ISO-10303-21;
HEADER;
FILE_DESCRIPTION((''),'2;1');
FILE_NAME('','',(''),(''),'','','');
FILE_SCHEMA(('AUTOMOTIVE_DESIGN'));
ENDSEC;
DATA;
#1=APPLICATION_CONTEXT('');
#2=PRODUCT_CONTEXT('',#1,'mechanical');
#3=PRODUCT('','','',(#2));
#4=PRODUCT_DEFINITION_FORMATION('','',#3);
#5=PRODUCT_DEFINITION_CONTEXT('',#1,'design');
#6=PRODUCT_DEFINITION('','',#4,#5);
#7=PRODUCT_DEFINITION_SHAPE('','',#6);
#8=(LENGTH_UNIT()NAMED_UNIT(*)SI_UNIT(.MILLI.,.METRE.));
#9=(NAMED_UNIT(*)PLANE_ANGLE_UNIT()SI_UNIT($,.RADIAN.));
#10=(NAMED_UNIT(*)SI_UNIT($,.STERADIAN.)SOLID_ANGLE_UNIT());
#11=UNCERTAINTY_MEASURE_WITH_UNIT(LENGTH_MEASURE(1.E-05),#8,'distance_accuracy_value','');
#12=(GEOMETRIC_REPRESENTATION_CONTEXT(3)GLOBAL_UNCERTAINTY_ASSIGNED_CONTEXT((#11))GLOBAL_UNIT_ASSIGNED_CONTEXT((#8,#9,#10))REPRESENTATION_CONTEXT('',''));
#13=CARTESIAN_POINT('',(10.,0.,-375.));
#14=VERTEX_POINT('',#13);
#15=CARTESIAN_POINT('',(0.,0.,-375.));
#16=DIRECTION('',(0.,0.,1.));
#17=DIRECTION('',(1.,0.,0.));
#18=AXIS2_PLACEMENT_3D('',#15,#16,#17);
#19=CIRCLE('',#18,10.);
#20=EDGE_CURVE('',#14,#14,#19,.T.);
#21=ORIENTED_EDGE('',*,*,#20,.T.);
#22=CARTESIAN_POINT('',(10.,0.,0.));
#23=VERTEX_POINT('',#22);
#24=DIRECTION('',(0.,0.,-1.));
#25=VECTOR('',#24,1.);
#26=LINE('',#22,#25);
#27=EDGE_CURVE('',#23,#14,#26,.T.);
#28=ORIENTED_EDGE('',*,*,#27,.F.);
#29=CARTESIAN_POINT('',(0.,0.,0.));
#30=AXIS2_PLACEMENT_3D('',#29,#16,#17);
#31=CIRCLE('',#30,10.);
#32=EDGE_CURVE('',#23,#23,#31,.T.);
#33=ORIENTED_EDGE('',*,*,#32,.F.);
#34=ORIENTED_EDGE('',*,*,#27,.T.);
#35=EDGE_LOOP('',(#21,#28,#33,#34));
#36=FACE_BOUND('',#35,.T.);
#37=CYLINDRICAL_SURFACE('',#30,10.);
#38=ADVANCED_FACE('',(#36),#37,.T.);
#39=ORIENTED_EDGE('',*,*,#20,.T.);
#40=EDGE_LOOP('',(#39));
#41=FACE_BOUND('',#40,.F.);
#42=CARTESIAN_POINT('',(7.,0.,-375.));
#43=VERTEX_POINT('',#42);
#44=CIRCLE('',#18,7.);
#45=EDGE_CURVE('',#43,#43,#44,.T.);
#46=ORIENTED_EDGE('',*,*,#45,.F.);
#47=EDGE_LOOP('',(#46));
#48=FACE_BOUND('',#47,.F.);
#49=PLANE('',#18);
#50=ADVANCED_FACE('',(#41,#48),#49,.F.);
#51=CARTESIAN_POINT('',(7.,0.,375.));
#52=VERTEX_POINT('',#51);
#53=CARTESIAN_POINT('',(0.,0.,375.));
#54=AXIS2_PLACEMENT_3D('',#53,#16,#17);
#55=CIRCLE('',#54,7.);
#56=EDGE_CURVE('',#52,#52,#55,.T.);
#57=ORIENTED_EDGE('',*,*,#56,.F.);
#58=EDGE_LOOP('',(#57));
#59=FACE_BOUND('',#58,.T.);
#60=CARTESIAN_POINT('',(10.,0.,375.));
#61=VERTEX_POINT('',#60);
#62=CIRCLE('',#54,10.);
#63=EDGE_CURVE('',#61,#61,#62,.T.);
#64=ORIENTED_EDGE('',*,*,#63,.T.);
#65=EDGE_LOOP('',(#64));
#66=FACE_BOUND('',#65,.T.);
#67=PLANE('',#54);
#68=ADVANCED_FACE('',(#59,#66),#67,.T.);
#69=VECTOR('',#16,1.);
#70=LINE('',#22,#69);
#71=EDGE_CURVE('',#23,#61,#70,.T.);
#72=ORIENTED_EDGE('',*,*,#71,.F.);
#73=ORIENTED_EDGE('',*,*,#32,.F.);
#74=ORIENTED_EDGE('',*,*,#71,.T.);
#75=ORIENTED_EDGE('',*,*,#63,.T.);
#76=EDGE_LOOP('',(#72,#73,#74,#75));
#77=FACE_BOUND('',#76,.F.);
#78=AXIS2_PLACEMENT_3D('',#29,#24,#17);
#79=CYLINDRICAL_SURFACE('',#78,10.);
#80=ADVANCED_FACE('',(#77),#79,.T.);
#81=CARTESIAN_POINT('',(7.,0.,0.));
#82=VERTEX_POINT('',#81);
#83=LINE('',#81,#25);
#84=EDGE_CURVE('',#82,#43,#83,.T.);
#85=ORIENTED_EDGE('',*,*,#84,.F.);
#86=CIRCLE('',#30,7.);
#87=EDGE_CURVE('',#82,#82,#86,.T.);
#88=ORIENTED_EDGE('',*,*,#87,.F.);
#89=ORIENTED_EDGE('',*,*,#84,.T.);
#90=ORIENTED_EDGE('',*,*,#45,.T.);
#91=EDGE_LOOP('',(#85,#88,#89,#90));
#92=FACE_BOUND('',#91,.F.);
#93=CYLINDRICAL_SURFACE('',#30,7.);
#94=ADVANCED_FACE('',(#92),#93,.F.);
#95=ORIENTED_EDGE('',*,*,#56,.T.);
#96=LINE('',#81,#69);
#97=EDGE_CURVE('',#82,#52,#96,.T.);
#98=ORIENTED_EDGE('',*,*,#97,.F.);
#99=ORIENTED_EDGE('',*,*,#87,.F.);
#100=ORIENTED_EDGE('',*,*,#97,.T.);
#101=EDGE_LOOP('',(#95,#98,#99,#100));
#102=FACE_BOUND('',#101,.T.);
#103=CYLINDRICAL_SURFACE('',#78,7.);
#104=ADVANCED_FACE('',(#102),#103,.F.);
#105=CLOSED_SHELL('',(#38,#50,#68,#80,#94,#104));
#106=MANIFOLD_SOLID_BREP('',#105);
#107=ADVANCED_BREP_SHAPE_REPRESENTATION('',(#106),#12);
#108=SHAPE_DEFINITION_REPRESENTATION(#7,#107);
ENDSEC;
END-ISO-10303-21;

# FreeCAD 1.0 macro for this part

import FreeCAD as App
import Part
import Sketcher

V = App.Vector

doc = App.newDocument("Part")
body = doc.addObject("PartDesign::Body", "Body")

# Sketch on XY plane
sketch1 = body.newObject("Sketcher::SketchObject", "Sketch")
sketch1.AttachmentSupport = (doc.getObject("XY_Plane"), [""])
sketch1.MapMode = "FlatFace"
sketch1.addGeometry([
    Part.Circle(V(0, 0, 0), V(0, 0, 1), 10),
    Part.Circle(V(0, 0, 0), V(0, 0, 1), 7),
], False)
sketch1.addConstraint([
    Sketcher.Constraint("Coincident", 0, 3, -1, 1),
    Sketcher.Constraint("Coincident", 1, 3, -1, 1),
    Sketcher.Constraint("Diameter", 0, 20.0),
    Sketcher.Constraint("Diameter", 1, 14.0),
])
pad1 = body.newObject("PartDesign::Pad", "Pad")
pad1.Profile = sketch1
pad1.Length = 750
pad1.Midplane = True

doc.recompute()
